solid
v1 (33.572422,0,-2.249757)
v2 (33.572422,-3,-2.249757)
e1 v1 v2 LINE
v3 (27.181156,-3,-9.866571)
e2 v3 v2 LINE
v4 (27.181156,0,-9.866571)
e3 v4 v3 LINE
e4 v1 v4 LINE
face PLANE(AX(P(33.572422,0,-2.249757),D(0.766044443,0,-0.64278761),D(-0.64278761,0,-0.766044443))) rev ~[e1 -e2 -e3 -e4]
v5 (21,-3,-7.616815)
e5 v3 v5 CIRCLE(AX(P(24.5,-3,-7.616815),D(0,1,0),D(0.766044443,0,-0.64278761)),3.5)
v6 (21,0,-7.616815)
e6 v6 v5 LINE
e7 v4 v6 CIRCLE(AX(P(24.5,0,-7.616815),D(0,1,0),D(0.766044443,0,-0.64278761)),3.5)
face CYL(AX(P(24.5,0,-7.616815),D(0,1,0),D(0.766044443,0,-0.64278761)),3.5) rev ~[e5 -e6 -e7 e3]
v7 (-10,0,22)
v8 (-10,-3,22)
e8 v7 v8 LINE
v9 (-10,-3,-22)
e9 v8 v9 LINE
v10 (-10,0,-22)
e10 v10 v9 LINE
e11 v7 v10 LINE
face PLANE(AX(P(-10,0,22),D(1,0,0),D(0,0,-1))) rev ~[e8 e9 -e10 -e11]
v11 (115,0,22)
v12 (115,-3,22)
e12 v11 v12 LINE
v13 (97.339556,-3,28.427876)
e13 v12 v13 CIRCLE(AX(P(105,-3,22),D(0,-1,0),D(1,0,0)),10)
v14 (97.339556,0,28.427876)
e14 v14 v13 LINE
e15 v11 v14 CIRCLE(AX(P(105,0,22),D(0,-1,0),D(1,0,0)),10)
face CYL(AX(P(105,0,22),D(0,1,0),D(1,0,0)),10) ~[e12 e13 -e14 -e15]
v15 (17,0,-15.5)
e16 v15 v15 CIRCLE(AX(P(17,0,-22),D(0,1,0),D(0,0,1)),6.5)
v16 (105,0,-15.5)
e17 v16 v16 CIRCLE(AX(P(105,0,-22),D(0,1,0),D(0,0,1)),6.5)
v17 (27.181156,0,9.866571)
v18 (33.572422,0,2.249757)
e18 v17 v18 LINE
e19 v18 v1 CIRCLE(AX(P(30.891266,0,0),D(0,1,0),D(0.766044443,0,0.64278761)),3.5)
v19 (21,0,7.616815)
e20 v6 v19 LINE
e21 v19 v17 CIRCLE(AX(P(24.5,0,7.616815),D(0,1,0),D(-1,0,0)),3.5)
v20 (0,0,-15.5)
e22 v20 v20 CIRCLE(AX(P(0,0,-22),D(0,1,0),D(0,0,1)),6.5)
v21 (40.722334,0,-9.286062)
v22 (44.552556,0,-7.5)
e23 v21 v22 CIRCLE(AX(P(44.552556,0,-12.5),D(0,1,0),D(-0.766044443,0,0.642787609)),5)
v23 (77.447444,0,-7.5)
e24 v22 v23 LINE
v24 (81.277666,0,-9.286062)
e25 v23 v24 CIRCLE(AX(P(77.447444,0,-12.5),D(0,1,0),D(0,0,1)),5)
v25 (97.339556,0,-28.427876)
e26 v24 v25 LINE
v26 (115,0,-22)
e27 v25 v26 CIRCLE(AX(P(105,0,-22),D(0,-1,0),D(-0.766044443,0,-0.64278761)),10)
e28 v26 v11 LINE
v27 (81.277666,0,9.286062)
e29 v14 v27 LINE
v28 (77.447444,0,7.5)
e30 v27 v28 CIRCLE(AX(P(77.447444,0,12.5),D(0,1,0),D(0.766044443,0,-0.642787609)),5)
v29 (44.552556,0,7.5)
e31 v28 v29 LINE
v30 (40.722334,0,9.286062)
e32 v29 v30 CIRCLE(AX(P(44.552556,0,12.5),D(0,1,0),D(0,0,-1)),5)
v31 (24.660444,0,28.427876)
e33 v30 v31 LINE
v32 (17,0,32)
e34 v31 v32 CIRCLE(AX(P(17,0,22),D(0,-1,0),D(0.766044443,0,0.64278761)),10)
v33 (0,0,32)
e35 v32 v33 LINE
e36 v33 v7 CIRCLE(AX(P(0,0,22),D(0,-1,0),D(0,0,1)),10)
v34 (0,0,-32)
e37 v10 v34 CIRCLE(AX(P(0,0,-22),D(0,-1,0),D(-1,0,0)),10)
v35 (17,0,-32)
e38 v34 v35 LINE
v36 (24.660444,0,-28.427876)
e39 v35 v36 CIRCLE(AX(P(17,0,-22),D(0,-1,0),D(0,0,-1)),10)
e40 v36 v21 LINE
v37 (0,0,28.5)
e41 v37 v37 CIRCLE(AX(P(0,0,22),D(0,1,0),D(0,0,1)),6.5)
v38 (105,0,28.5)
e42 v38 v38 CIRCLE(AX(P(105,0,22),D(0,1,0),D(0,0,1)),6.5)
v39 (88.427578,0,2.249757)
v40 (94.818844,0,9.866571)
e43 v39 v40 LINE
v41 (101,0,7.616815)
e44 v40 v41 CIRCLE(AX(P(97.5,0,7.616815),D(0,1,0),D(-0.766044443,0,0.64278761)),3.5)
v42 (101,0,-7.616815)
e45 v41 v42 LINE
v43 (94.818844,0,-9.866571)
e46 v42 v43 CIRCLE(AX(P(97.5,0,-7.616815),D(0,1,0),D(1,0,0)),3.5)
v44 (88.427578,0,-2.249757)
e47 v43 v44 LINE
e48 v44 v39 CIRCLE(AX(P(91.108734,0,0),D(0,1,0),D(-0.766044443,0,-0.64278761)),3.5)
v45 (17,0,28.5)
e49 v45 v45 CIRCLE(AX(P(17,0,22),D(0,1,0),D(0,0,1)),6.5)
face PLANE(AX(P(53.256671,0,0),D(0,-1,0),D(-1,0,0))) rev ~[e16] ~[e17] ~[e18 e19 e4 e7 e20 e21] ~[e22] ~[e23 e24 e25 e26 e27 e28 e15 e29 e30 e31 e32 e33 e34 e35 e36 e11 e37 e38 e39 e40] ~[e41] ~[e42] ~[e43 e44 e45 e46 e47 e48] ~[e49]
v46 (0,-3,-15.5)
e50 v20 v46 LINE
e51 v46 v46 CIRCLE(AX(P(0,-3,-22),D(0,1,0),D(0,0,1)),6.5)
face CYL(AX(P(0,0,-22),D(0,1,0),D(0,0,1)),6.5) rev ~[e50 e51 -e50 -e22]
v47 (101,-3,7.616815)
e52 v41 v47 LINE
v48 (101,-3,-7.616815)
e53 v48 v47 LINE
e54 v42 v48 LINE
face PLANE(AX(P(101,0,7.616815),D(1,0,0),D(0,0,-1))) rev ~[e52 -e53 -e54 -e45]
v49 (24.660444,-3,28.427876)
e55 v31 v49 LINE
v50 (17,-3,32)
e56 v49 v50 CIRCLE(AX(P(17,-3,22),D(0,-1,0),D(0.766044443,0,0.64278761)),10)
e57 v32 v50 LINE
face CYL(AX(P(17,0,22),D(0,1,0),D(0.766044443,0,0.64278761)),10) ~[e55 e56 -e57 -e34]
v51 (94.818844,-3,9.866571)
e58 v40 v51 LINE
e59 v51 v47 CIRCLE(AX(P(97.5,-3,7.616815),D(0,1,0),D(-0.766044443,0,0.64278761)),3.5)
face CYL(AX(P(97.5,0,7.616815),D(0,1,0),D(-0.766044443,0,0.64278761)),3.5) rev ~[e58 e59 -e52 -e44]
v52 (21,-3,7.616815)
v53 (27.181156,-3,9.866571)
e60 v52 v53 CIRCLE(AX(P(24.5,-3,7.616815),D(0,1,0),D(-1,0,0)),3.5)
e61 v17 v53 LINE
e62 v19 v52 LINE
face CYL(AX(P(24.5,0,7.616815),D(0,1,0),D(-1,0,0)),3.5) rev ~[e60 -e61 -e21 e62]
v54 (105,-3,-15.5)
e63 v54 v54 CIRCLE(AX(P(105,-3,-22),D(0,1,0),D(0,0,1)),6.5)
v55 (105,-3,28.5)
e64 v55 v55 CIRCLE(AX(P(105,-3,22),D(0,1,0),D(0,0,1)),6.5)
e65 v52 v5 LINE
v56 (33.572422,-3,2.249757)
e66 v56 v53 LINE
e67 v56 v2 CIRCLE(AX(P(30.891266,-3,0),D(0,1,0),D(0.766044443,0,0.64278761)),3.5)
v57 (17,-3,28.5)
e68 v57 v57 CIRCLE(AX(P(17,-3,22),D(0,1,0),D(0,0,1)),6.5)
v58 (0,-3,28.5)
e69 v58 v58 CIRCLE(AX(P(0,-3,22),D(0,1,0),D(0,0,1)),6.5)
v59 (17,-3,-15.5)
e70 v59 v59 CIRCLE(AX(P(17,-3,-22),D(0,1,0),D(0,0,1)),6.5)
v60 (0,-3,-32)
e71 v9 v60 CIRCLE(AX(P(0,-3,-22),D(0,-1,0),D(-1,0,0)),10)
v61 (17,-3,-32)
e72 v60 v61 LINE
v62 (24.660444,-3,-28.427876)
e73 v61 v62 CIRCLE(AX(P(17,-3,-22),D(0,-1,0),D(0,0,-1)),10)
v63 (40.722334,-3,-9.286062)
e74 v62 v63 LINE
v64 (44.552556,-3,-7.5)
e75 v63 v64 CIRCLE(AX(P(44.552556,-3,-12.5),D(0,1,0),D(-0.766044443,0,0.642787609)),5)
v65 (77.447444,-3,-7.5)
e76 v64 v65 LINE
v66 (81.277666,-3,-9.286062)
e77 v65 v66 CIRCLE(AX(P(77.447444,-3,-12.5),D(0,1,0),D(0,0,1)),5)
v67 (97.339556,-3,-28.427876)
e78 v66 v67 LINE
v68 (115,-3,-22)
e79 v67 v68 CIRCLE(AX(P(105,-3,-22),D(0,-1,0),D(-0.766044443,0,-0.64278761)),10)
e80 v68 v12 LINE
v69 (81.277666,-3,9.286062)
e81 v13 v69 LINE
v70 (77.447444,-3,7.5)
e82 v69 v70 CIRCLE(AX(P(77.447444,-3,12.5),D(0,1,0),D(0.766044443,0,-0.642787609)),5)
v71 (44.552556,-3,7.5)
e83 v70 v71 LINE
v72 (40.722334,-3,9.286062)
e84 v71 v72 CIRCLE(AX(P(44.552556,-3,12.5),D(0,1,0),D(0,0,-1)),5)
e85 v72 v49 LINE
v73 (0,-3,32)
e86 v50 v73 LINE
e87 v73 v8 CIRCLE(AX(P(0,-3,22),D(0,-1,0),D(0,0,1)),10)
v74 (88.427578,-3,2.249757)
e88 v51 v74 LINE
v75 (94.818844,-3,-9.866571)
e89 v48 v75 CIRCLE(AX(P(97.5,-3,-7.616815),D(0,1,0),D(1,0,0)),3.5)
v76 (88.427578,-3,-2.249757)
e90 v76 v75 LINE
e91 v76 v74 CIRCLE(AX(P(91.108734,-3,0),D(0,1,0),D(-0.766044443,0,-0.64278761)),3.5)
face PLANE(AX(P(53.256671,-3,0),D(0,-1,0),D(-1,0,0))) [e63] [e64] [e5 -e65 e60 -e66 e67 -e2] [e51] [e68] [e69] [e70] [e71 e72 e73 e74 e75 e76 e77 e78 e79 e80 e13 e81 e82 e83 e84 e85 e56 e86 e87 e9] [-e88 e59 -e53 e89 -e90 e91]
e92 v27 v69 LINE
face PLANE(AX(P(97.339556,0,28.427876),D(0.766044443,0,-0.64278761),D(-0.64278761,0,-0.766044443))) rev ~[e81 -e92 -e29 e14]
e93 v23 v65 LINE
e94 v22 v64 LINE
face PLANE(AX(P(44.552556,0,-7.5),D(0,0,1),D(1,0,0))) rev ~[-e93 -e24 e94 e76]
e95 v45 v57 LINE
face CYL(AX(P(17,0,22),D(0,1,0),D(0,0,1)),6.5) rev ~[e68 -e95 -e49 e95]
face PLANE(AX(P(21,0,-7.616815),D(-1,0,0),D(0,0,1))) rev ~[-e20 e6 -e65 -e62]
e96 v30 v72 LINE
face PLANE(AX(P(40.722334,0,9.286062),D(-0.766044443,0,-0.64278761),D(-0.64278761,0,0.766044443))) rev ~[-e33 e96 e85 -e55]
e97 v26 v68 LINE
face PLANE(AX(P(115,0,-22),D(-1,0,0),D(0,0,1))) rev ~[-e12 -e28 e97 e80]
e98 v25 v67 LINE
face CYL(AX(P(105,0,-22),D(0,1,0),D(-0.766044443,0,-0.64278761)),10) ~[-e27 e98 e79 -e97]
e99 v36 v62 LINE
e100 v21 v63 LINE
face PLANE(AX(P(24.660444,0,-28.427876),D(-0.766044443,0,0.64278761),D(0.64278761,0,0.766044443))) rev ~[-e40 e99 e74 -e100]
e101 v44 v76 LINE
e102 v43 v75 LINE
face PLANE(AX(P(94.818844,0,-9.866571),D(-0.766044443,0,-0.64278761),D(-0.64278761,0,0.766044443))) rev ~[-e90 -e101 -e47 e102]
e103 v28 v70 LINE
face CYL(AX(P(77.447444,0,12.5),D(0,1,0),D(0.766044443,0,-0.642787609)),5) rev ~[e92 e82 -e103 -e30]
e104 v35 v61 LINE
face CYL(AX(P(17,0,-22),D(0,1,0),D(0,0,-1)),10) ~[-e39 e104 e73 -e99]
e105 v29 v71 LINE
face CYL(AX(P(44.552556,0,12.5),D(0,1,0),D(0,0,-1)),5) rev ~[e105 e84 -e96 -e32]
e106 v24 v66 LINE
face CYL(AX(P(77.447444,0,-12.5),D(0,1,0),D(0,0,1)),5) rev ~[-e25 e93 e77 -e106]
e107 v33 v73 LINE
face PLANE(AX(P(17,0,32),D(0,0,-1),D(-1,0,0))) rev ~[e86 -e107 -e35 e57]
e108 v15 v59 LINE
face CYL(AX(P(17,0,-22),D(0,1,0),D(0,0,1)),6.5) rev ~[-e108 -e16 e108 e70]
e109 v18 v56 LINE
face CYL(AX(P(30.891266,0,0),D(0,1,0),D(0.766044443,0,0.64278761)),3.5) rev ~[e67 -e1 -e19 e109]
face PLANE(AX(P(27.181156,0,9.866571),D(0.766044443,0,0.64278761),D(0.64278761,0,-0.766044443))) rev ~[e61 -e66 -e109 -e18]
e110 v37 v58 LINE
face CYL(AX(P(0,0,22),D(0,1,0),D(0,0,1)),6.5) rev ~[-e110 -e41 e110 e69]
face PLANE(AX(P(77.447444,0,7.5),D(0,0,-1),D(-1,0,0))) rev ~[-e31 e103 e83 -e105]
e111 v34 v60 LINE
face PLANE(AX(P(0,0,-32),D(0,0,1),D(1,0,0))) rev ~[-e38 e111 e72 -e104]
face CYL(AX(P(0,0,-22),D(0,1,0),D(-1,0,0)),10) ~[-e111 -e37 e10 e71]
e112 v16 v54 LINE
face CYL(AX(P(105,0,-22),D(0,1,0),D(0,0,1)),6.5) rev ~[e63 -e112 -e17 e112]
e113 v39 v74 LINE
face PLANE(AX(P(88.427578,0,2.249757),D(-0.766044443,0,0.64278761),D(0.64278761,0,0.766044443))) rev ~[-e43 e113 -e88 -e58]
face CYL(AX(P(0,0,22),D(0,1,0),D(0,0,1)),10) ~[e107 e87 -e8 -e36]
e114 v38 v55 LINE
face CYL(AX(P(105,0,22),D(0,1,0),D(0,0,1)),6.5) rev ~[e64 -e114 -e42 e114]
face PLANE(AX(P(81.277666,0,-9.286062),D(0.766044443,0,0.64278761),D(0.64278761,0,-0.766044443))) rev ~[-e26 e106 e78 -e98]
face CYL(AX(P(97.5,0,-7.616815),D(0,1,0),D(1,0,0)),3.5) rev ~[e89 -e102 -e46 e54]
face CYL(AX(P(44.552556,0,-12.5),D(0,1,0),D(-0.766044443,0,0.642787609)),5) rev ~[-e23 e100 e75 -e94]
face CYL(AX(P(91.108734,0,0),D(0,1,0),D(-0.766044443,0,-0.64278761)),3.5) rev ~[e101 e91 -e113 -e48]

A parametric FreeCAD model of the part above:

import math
import FreeCAD as App
import Part
import Sketcher
from FreeCAD import Vector
Q = App.Units.Quantity

doc = App.newDocument("Part")
body = doc.addObject("PartDesign::Body", "Body")

sketch1 = body.newObject("Sketcher::SketchObject", "Sketch")
sketch1.AttachmentSupport = (doc.getObject("XZ_Plane"), [""])
sketch1.MapMode = "FlatFace"
sketch1.addGeometry([
    Part.LineSegment(Vector(-10, -22, 0), Vector(-10, 22, 0)),
    Part.ArcOfCircle(Part.Circle(Vector(0, 22, 0), Vector(0, 0, 1), 10), math.radians(90), math.radians(180)),
    Part.LineSegment(Vector(0, 32, 0), Vector(17, 32, 0)),
    Part.ArcOfCircle(Part.Circle(Vector(17, 22, 0), Vector(0, 0, 1), 10), math.radians(40), math.radians(90)),
    Part.LineSegment(Vector(24.7, 28.4, 0), Vector(40.7, 9.3, 0)),
    Part.ArcOfCircle(Part.Circle(Vector(44.6, 12.5, 0), Vector(0, 0, 1), 5), math.radians(-140), math.radians(-90)),
    Part.LineSegment(Vector(44.6, 7.5, 0), Vector(77.4, 7.5, 0)),
    Part.ArcOfCircle(Part.Circle(Vector(77.4, 12.5, 0), Vector(0, 0, 1), 5), math.radians(-90), math.radians(-40)),
    Part.LineSegment(Vector(81.3, 9.3, 0), Vector(97.3, 28.4, 0)),
    Part.ArcOfCircle(Part.Circle(Vector(105, 22, 0), Vector(0, 0, 1), 10), math.radians(0), math.radians(140)),
    Part.LineSegment(Vector(115, 22, 0), Vector(115, -22, 0)),
    Part.ArcOfCircle(Part.Circle(Vector(105, -22, 0), Vector(0, 0, 1), 10), math.radians(-140), math.radians(0)),
    Part.LineSegment(Vector(97.3, -28.4, 0), Vector(81.3, -9.3, 0)),
    Part.ArcOfCircle(Part.Circle(Vector(77.4, -12.5, 0), Vector(0, 0, 1), 5), math.radians(40), math.radians(90)),
    Part.LineSegment(Vector(77.4, -7.5, 0), Vector(44.6, -7.5, 0)),
    Part.ArcOfCircle(Part.Circle(Vector(44.6, -12.5, 0), Vector(0, 0, 1), 5), math.radians(90), math.radians(140)),
    Part.LineSegment(Vector(40.7, -9.3, 0), Vector(24.7, -28.4, 0)),
    Part.ArcOfCircle(Part.Circle(Vector(17, -22, 0), Vector(0, 0, 1), 10), math.radians(-90), math.radians(-40)),
    Part.LineSegment(Vector(17, -32, 0), Vector(0, -32, 0)),
    Part.ArcOfCircle(Part.Circle(Vector(0, -22, 0), Vector(0, 0, 1), 10), math.radians(180), math.radians(270)),
], False)
sketch1.addConstraint([
    Sketcher.Constraint("Tangent", 0, 2, 1, 2),
    Sketcher.Constraint("Tangent", 1, 1, 2, 1),
    Sketcher.Constraint("Tangent", 2, 2, 3, 2),
    Sketcher.Constraint("Tangent", 3, 1, 4, 1),
    Sketcher.Constraint("Tangent", 4, 2, 5, 1),
    Sketcher.Constraint("Tangent", 5, 2, 6, 1),
    Sketcher.Constraint("Tangent", 6, 2, 7, 1),
    Sketcher.Constraint("Tangent", 7, 2, 8, 1),
    Sketcher.Constraint("Tangent", 8, 2, 9, 2),
    Sketcher.Constraint("Tangent", 9, 1, 10, 1),
    Sketcher.Constraint("Tangent", 10, 2, 11, 2),
    Sketcher.Constraint("Tangent", 11, 1, 12, 1),
    Sketcher.Constraint("Tangent", 12, 2, 13, 1),
    Sketcher.Constraint("Tangent", 13, 2, 14, 1),
    Sketcher.Constraint("Tangent", 14, 2, 15, 1),
    Sketcher.Constraint("Tangent", 15, 2, 16, 1),
    Sketcher.Constraint("Tangent", 16, 2, 17, 2),
    Sketcher.Constraint("Tangent", 17, 1, 18, 1),
    Sketcher.Constraint("Tangent", 18, 2, 19, 2),
    Sketcher.Constraint("Tangent", 19, 1, 0, 1),
    Sketcher.Constraint("Vertical", 0),
    Sketcher.Constraint("Horizontal", 2),
    Sketcher.Constraint("Horizontal", 6),
    Sketcher.Constraint("Vertical", 10),
    Sketcher.Constraint("Horizontal", 14),
    Sketcher.Constraint("Horizontal", 18),
    Sketcher.Constraint("Equal", 1, 3),
    Sketcher.Constraint("Equal", 5, 7),
    Sketcher.Constraint("Equal", 3, 9),
    Sketcher.Constraint("Equal", 9, 11),
    Sketcher.Constraint("Equal", 7, 13),
    Sketcher.Constraint("Equal", 13, 15),
    Sketcher.Constraint("Equal", 11, 17),
    Sketcher.Constraint("Equal", 17, 19),
    Sketcher.Constraint("Symmetric", 1, 3, 19, 3, -1, 1),
    Sketcher.Constraint("Symmetric", 7, 3, 13, 3, -1),
    Sketcher.Constraint("Symmetric", 4, 2, 15, 2, -1),
    Sketcher.Constraint("Parallel", 4, 12),
    Sketcher.Constraint("Parallel", 8, 16),
    Sketcher.Constraint("Horizontal", 3, 3, 9, 3),
    Sketcher.Constraint("Radius", 1, Q("10 mm")),
    Sketcher.Constraint("Radius", 5, Q("5 mm")),
    Sketcher.Constraint("DistanceX", 2, 1, 2, 2, Q("17 mm")),
    Sketcher.Constraint("DistanceY", 0, 1, 0, 2, Q("44 mm")),
    Sketcher.Constraint("Angle", 4, Q("-50 deg")),
    Sketcher.Constraint("DistanceX", -1, 1, 9, 3, Q("105 mm")),
    Sketcher.Constraint("DistanceY", 13, 3, 7, 3, Q("25 mm")),
])
pad1 = body.newObject("PartDesign::Pad", "Pad")
pad1.Profile = sketch1
pad1.Length = 3

sketch2 = body.newObject("Sketcher::SketchObject", "Sketch001")
sketch2.AttachmentSupport = (doc.getObject("XZ_Plane"), [""])
sketch2.MapMode = "FlatFace"
sketch2.addGeometry([
    Part.Circle(Vector(0, -22, 0), Vector(0, 0, 1), 6),
    Part.Circle(Vector(17, -22, 0), Vector(0, 0, 1), 6),
    Part.Circle(Vector(105, -22, 0), Vector(0, 0, 1), 6),
    Part.Circle(Vector(105, 22, 0), Vector(0, 0, 1), 6),
    Part.Circle(Vector(17, 22, 0), Vector(0, 0, 1), 6),
    Part.Circle(Vector(0, 22, 0), Vector(0, 0, 1), 6),
], False)
sketch2.addConstraint([
    Sketcher.Constraint("Equal", 0, 1),
    Sketcher.Constraint("Equal", 1, 2),
    Sketcher.Constraint("Equal", 2, 3),
    Sketcher.Constraint("Equal", 3, 4),
    Sketcher.Constraint("Equal", 4, 5),
    Sketcher.Constraint("Symmetric", 0, 3, 5, 3, -1, 1),
    Sketcher.Constraint("Symmetric", 2, 3, 3, 3, -1),
    Sketcher.Constraint("Symmetric", 1, 3, 4, 3, -1),
    Sketcher.Constraint("PointOnObject", 0, 3, -2),
    Sketcher.Constraint("Horizontal", 0, 3, 1, 3),
    Sketcher.Constraint("Horizontal", 1, 3, 2, 3),
    Sketcher.Constraint("Diameter", 0, Q("13 mm")),
    Sketcher.Constraint("DistanceY", 0, 3, -1, 1, Q("22 mm")),
    Sketcher.Constraint("DistanceX", -1, 1, 1, 3, Q("17 mm")),
    Sketcher.Constraint("DistanceX", -1, 1, 2, 3, Q("105 mm")),
])
pocket1 = body.newObject("PartDesign::Pocket", "Pocket")
pocket1.Profile = sketch2
pocket1.Type = "ThroughAll"
pocket1.Reversed = True

sketch3 = body.newObject("Sketcher::SketchObject", "Sketch002")
sketch3.AttachmentSupport = (doc.getObject("XZ_Plane"), [""])
sketch3.MapMode = "FlatFace"
sketch3.addGeometry([
    Part.LineSegment(Vector(21, -7.6, 0), Vector(21, 7.6, 0)),
    Part.ArcOfCircle(Part.Circle(Vector(24.5, 7.6, 0), Vector(0, 0, 1), 3.5), math.radians(40), math.radians(180)),
    Part.LineSegment(Vector(27.2, 9.9, 0), Vector(33.6, 2.2, 0)),
    Part.ArcOfCircle(Part.Circle(Vector(30.9, 0, 0), Vector(0, 0, 1), 3.5), math.radians(-40), math.radians(40)),
    Part.LineSegment(Vector(33.6, -2.2, 0), Vector(27.2, -9.9, 0)),
    Part.ArcOfCircle(Part.Circle(Vector(24.5, -7.6, 0), Vector(0, 0, 1), 3.5), math.radians(-180), math.radians(-40)),
    Part.LineSegment(Vector(94.8, -9.9, 0), Vector(88.4, -2.2, 0)),
    Part.ArcOfCircle(Part.Circle(Vector(91.1, 0, 0), Vector(0, 0, 1), 3.5), math.radians(140), math.radians(220)),
    Part.LineSegment(Vector(88.4, 2.2, 0), Vector(94.8, 9.9, 0)),
    Part.ArcOfCircle(Part.Circle(Vector(97.5, 7.6, 0), Vector(0, 0, 1), 3.5), math.radians(0), math.radians(140)),
    Part.LineSegment(Vector(101, 7.6, 0), Vector(101, -7.6, 0)),
    Part.ArcOfCircle(Part.Circle(Vector(97.5, -7.6, 0), Vector(0, 0, 1), 3.5), math.radians(-140), math.radians(0)),
], False)
sketch3.addConstraint([
    Sketcher.Constraint("Tangent", 0, 2, 1, 2),
    Sketcher.Constraint("Tangent", 1, 1, 2, 1),
    Sketcher.Constraint("Tangent", 2, 2, 3, 2),
    Sketcher.Constraint("Tangent", 3, 1, 4, 1),
    Sketcher.Constraint("Tangent", 4, 2, 5, 2),
    Sketcher.Constraint("Tangent", 5, 1, 0, 1),
    Sketcher.Constraint("Tangent", 6, 2, 7, 2),
    Sketcher.Constraint("Tangent", 7, 1, 8, 1),
    Sketcher.Constraint("Tangent", 8, 2, 9, 2),
    Sketcher.Constraint("Tangent", 9, 1, 10, 1),
    Sketcher.Constraint("Tangent", 10, 2, 11, 2),
    Sketcher.Constraint("Tangent", 11, 1, 6, 1),
    Sketcher.Constraint("Vertical", 0),
    Sketcher.Constraint("Vertical", 10),
    Sketcher.Constraint("Equal", 1, 3),
    Sketcher.Constraint("Equal", 3, 5),
    Sketcher.Constraint("Equal", 5, 7),
    Sketcher.Constraint("Equal", 7, 9),
    Sketcher.Constraint("Equal", 9, 11),
    Sketcher.Constraint("Symmetric", 2, 2, 3, 1, -1),
    Sketcher.Constraint("Symmetric", 6, 2, 7, 1, -1),
    Sketcher.Constraint("Parallel", 2, 6),
    Sketcher.Constraint("Horizontal", 1, 3, 9, 3),
    Sketcher.Constraint("Radius", 1, Q("3.5 mm")),
    Sketcher.Constraint("Angle", 2, Q("-50 deg")),
    Sketcher.Constraint("DistanceX", -1, 1, 0, 2, Q("21 mm")),
    Sketcher.Constraint("DistanceX", -1, 1, 9, 1, Q("101 mm")),
    Sketcher.Constraint("DistanceY", 0, 1, 0, 2, Q("15.233629 mm")),
])
pocket2 = body.newObject("PartDesign::Pocket", "Pocket001")
pocket2.Profile = sketch3
pocket2.Type = "ThroughAll"
pocket2.Reversed = True

doc.recompute()
